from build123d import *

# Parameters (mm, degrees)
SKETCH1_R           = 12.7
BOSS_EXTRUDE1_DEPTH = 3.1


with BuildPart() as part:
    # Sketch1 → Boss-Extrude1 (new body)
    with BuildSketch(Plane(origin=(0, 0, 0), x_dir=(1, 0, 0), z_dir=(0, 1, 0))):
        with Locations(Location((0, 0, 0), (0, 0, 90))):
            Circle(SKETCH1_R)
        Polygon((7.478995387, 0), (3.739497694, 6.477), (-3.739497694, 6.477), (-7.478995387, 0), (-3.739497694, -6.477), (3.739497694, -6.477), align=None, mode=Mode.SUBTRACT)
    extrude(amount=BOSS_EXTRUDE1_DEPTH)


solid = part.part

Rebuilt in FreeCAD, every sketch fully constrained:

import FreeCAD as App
import Part
import Sketcher

V = App.Vector
Q = App.Units.Quantity


def add_polygon(sketch, points):
    """Adds a closed chain of lines whose ends are joined by coincident constraints."""
    first, n = sketch.GeometryCount, len(points)
    for a, b in zip(points, points[1:] + points[:1]):
        sketch.addGeometry(Part.LineSegment(App.Vector(*a, 0), App.Vector(*b, 0)), False)
    for i in range(n):
        sketch.addConstraint(Sketcher.Constraint("Coincident", first + i, 2, first + (i + 1) % n, 1))

doc = App.newDocument("Part")
params = doc.addObject("Spreadsheet::Sheet", "Params")
for row, (alias, value) in enumerate([
    ("sketch1_diameter", "25.4 mm"),
    ("pad1_length", "3.1 mm"),
], start=1):
    params.set(f"A{row}", alias)
    params.set(f"B{row}", "=" + value)
    params.setAlias(f"B{row}", alias)

body = doc.addObject("PartDesign::Body", "Body")

# Sketch on XZ plane
sketch1 = body.newObject("Sketcher::SketchObject", "Sketch")
sketch1.AttachmentSupport = (doc.getObject("XZ_Plane"), [""])
sketch1.MapMode = "FlatFace"
sketch1.addGeometry(Part.Circle(V(0, 0, 0), V(0, 0, 1), 13), False)  # 0
add_polygon(sketch1, [(4, -6), (7, 0), (4, 6), (-4, 6), (-7, 0), (-4, -6)])  # lines 1-6
sketch1.addConstraint([
    Sketcher.Constraint("Horizontal", 3),
    Sketcher.Constraint("Horizontal", 6),
    Sketcher.Constraint("Coincident", 0, 3, -1, 1),
    Sketcher.Constraint("Symmetric", 1, 2, 4, 2, -1, 1),
    Sketcher.Constraint("Symmetric", 2, 2, 5, 2, -1, 1),
    Sketcher.Constraint("PointOnObject", 1, 2, -1),
    Sketcher.Constraint("Parallel", 1, 4),
    Sketcher.Constraint("Vertical", 3, 2, 5, 2),
    Sketcher.Constraint("Diameter", 0, Q("25.4 mm")),
    Sketcher.Constraint("Angle", 1, Q("60 deg")),
    Sketcher.Constraint("DistanceY", -1, 1, 2, 2, Q("6.477 mm")),
    Sketcher.Constraint("DistanceX", 3, 2, 3, 1, Q("7.478995 mm")),
])
sketch1.setExpression("Constraints[14]", "Params.sketch1_diameter")
pad1 = body.newObject("PartDesign::Pad", "Pad")
pad1.Profile = sketch1
pad1.setExpression("Length", "Params.pad1_length")
pad1.Reversed = True

doc.recompute()
